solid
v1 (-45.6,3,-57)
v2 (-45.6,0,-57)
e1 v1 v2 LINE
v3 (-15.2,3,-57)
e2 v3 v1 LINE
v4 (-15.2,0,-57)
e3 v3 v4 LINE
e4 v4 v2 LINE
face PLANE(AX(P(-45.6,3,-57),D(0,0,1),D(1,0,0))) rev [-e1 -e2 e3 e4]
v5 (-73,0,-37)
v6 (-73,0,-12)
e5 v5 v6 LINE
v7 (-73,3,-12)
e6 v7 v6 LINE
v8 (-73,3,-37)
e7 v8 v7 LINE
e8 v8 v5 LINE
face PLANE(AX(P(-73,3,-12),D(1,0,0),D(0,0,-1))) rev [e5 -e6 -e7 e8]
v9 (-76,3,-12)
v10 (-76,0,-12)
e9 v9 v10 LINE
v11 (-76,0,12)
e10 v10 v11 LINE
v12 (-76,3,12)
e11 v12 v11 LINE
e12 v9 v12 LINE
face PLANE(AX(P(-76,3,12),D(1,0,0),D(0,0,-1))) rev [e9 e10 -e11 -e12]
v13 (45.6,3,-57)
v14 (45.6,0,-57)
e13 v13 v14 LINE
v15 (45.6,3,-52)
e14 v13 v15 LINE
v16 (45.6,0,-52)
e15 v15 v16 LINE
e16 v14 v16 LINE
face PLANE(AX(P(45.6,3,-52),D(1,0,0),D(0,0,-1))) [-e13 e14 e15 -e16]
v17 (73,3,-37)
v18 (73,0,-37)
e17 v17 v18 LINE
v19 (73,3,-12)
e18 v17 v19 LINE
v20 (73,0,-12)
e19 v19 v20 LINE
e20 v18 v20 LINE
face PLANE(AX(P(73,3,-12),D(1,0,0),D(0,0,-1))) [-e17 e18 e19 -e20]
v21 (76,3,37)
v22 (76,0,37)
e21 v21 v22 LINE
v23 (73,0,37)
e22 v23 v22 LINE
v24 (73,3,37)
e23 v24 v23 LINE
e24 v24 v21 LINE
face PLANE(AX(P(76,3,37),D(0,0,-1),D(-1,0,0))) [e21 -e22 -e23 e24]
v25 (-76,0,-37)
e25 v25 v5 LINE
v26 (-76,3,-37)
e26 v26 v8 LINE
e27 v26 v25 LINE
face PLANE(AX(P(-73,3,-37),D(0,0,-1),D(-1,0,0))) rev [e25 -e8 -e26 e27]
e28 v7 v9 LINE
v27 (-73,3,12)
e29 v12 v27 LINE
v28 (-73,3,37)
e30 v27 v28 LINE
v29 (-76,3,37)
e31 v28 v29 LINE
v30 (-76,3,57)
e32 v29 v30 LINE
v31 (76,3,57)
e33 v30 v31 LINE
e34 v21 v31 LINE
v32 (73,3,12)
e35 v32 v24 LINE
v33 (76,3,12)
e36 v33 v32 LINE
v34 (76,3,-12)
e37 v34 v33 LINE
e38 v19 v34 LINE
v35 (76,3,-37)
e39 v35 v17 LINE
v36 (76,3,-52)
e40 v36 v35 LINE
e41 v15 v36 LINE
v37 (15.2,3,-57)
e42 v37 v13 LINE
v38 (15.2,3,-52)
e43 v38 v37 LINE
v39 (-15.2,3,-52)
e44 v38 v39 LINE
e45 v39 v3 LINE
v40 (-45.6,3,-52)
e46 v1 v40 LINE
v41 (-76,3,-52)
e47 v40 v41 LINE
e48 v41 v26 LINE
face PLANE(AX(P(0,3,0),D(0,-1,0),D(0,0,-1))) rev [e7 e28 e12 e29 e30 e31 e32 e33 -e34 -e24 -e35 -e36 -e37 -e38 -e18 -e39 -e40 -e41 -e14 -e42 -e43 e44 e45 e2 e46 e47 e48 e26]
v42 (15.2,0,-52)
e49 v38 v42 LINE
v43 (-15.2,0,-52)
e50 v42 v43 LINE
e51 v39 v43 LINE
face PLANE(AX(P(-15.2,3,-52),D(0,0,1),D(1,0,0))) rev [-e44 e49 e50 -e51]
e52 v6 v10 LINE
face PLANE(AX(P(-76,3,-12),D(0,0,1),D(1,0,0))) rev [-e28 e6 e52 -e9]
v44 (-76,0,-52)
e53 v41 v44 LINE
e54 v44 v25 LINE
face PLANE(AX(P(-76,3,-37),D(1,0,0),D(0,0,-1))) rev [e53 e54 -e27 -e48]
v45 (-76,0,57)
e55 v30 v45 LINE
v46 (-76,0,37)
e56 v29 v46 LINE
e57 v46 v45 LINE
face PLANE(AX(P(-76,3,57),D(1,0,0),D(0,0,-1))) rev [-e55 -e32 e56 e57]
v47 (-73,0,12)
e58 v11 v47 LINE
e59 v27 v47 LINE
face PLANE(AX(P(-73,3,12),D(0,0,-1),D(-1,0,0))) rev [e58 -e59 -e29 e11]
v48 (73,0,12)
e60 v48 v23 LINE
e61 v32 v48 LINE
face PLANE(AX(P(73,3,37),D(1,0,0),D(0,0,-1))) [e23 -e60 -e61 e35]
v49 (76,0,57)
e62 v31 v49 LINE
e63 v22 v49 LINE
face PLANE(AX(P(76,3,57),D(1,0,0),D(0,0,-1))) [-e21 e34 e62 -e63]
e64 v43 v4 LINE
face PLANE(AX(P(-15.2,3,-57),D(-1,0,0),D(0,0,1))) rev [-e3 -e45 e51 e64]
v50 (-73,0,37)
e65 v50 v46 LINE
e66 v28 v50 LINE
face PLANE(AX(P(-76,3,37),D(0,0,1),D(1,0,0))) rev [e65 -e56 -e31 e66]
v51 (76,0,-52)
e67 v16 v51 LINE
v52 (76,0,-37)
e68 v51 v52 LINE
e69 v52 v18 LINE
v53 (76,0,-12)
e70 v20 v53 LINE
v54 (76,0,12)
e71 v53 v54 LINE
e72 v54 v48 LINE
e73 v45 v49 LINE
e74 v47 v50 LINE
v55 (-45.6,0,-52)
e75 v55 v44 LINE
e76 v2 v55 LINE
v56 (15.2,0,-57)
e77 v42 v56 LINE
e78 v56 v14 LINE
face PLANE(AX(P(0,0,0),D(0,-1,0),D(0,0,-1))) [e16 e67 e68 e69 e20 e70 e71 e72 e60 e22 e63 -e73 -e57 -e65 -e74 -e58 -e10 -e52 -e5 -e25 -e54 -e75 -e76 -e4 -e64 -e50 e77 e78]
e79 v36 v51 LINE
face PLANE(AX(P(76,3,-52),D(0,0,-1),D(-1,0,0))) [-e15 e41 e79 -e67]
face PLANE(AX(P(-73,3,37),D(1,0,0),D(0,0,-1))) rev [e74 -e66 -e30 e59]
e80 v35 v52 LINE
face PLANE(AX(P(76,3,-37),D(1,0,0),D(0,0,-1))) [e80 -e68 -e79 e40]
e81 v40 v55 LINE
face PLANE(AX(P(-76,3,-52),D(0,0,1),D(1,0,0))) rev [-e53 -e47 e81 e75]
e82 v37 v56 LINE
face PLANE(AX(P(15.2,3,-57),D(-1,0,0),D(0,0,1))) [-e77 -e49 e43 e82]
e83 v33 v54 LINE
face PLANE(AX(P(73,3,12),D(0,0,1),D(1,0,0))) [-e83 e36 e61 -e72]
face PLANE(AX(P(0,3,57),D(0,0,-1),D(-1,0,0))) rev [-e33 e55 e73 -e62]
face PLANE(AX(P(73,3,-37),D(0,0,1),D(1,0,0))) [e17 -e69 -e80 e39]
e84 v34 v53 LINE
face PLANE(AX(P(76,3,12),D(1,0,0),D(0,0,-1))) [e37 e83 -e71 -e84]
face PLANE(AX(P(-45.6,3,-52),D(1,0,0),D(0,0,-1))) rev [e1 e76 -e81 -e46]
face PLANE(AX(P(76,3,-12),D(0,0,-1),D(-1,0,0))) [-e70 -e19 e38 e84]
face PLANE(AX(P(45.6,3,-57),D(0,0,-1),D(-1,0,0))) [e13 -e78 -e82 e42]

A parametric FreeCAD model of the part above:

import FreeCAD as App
import Part
import Sketcher
from FreeCAD import Vector
Q = App.Units.Quantity


def add_polygon(sketch, points):
    """Adds a closed chain of lines whose ends are joined by coincident constraints."""
    first, n = sketch.GeometryCount, len(points)
    for a, b in zip(points, points[1:] + points[:1]):
        sketch.addGeometry(Part.LineSegment(App.Vector(*a, 0), App.Vector(*b, 0)), False)
    for i in range(n):
        sketch.addConstraint(Sketcher.Constraint("Coincident", first + i, 2, first + (i + 1) % n, 1))

doc = App.newDocument("Part")
body = doc.addObject("PartDesign::Body", "Body")

# Sketch on XZ plane
sketch1 = body.newObject("Sketcher::SketchObject", "Sketch")
sketch1.AttachmentSupport = (doc.getObject("XZ_Plane"), [""])
sketch1.MapMode = "FlatFace"
add_polygon(sketch1, [(0, 57), (0, -52), (-15.2, -52), (-15.2, -57), (-45.6, -57), (-45.6, -52), (-76, -52), (-76, -37), (-73, -37), (-73, -12), (-76, -12), (-76, 12), (-73, 12), (-73, 37), (-76, 37), (-76, 57)])  # lines 0-15
sketch1.addConstraint([
    Sketcher.Constraint("Vertical", 0),
    Sketcher.Constraint("Horizontal", 1),
    Sketcher.Constraint("Vertical", 2),
    Sketcher.Constraint("Horizontal", 3),
    Sketcher.Constraint("Vertical", 4),
    Sketcher.Constraint("Horizontal", 5),
    Sketcher.Constraint("Vertical", 6),
    Sketcher.Constraint("Horizontal", 7),
    Sketcher.Constraint("Vertical", 8),
    Sketcher.Constraint("Horizontal", 9),
    Sketcher.Constraint("Vertical", 10),
    Sketcher.Constraint("Horizontal", 11),
    Sketcher.Constraint("Vertical", 12),
    Sketcher.Constraint("Horizontal", 13),
    Sketcher.Constraint("Vertical", 14),
    Sketcher.Constraint("Horizontal", 15),
    Sketcher.Constraint("Symmetric", 8, 2, 11, 2, -1),
    Sketcher.Constraint("Symmetric", 6, 2, 13, 2, -1),
    Sketcher.Constraint("PointOnObject", 0, 2, -2),
    Sketcher.Constraint("Horizontal", 1, 2, 4, 2),
    Sketcher.Constraint("Vertical", 6, 2, 9, 2),
    Sketcher.Constraint("Equal", 3, 5),
    Sketcher.Constraint("DistanceX", 7, 1, 7, 2, Q("3 mm")),
    Sketcher.Constraint("DistanceX", 15, 1, 15, 2, Q("76 mm")),
    Sketcher.Constraint("DistanceY", 0, 2, 0, 1, Q("109 mm")),
    Sketcher.Constraint("DistanceY", 2, 2, 2, 1, Q("5 mm")),
    Sketcher.Constraint("DistanceY", 6, 1, 6, 2, Q("15 mm")),
    Sketcher.Constraint("DistanceY", 8, 1, 8, 2, Q("25 mm")),
    Sketcher.Constraint("DistanceY", 10, 1, 10, 2, Q("24 mm")),
    Sketcher.Constraint("DistanceX", 1, 2, 1, 1, Q("15.2 mm")),
])
pad1 = body.newObject("PartDesign::Pad", "Pad")
pad1.Profile = sketch1
pad1.Length = 3
pad1.Reversed = True
doc.recompute()

mirrored = body.newObject("PartDesign::Mirrored", "Mirrored")
mirrored.Originals = [pad1]
mirrored.MirrorPlane = (doc.getObject("YZ_Plane"), [""])
body.Tip = mirrored

doc.recompute()
